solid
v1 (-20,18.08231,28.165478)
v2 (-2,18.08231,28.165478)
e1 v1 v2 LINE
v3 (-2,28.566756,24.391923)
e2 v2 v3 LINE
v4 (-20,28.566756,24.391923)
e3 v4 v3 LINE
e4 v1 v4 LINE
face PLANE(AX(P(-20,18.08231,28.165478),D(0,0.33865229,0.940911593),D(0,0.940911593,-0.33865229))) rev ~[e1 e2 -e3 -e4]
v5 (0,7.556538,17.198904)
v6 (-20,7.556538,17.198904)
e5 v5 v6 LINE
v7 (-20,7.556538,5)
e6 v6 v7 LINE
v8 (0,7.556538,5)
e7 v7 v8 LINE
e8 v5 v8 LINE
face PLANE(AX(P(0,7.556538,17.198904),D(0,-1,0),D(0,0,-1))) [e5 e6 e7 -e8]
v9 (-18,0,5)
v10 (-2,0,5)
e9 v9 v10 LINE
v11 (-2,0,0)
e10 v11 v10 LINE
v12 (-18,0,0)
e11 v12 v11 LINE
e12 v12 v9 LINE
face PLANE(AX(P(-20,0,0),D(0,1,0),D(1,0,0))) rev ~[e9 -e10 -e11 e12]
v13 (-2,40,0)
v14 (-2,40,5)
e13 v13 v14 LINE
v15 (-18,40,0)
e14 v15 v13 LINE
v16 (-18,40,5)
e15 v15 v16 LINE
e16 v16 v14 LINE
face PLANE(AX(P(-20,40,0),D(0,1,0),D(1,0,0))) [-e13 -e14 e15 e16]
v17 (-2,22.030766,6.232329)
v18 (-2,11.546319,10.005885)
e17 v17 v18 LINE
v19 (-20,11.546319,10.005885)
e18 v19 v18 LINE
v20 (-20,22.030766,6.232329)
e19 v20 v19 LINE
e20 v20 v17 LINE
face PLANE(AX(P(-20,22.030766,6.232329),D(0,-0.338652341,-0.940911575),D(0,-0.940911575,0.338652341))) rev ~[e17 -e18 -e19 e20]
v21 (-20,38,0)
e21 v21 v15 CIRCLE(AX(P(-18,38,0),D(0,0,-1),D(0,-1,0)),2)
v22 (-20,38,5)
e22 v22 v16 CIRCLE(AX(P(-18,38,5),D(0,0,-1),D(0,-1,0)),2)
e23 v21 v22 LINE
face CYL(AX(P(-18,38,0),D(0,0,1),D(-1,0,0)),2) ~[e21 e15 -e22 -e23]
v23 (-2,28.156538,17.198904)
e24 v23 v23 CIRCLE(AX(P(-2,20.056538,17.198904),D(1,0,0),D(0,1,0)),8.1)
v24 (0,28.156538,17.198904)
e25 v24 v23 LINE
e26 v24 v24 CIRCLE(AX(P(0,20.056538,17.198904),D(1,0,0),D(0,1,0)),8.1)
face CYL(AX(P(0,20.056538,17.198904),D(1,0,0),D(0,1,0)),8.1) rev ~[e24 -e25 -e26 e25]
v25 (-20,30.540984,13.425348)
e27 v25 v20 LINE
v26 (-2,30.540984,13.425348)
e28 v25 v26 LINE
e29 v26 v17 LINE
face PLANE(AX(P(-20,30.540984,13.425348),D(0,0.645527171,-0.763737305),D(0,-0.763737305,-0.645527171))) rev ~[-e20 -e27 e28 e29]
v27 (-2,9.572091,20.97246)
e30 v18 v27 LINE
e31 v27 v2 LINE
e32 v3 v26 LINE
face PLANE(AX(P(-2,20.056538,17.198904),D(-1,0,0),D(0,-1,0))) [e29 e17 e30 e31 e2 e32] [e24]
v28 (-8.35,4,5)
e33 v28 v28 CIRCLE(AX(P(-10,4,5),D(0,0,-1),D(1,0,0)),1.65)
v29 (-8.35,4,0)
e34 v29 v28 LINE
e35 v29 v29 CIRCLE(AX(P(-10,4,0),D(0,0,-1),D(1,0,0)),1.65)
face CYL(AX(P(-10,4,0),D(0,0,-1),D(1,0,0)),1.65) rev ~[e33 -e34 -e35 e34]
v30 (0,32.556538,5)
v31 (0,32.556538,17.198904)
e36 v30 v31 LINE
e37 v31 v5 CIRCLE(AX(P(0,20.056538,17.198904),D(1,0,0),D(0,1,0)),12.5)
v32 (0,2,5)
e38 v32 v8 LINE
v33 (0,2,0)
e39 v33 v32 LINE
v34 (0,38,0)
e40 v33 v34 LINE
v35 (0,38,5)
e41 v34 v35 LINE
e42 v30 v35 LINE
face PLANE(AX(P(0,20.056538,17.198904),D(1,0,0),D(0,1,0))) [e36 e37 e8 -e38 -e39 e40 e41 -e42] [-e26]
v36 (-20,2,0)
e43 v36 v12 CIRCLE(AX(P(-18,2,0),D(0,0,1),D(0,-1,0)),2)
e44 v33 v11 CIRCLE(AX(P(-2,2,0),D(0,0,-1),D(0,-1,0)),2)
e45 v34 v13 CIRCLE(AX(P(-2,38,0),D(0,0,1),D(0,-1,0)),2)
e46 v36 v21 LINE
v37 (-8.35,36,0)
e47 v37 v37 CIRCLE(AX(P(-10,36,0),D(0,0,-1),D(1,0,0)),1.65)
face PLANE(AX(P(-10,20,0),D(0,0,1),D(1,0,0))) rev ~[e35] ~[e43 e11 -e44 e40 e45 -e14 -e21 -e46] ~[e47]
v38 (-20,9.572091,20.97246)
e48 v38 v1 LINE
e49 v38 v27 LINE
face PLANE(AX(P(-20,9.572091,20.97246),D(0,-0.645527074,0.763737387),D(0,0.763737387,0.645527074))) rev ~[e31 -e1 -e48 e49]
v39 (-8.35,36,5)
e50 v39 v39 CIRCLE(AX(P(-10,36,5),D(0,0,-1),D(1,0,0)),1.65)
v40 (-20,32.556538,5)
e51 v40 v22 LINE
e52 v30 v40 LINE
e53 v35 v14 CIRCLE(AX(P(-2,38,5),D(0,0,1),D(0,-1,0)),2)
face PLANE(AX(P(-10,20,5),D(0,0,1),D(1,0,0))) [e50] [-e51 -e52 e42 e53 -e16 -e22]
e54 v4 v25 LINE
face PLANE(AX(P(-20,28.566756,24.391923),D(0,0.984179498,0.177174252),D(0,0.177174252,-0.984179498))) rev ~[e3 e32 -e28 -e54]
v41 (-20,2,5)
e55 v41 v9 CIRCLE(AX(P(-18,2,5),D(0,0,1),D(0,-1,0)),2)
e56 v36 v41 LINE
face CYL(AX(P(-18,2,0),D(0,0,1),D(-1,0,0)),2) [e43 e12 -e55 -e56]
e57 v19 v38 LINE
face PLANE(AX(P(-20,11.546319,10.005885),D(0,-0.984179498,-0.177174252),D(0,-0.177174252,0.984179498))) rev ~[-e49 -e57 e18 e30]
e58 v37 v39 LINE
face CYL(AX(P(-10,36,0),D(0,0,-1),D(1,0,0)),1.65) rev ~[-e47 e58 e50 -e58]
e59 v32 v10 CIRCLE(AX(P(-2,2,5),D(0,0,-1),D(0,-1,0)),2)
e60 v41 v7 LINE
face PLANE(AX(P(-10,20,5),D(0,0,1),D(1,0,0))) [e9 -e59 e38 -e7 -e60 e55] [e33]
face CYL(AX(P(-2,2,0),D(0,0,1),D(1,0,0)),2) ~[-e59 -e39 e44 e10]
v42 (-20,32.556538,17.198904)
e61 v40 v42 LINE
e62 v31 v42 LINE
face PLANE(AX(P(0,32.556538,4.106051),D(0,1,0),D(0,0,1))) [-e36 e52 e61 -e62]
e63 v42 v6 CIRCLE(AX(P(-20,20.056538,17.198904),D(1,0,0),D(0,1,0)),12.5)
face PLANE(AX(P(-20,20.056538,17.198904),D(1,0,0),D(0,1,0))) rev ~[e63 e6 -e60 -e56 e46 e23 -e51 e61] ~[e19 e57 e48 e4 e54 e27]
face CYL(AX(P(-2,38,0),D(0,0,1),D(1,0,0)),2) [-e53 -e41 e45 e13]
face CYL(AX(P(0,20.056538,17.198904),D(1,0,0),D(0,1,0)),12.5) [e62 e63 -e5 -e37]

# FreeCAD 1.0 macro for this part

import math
import FreeCAD as App
import Part
import Sketcher
from FreeCAD import Vector


def edges_at(feature, points):
    """Names of the edges that pass closest to the given points."""
    edges = feature.Shape.Edges
    near = lambda p: min(range(len(edges)), key=lambda i: edges[i].distToShape(Part.Vertex(*p))[0])
    return sorted({f"Edge{near(p) + 1}" for p in points})


def add_polygon(sketch, points):
    """Adds a closed chain of lines whose ends are joined by coincident constraints."""
    first, n = sketch.GeometryCount, len(points)
    for a, b in zip(points, points[1:] + points[:1]):
        sketch.addGeometry(Part.LineSegment(App.Vector(*a, 0), App.Vector(*b, 0)), False)
    for i in range(n):
        sketch.addConstraint(Sketcher.Constraint("Coincident", first + i, 2, first + (i + 1) % n, 1))

doc = App.newDocument("Part")
params = doc.addObject("Spreadsheet::Sheet", "Params")
for row, (alias, value) in enumerate([
    ("sketch1_width", "20 mm"),
    ("sketch1_height", "40 mm"),
    ("pad1_length", "5 mm"),
    ("sketch2_diameter", "16.2 mm"),
    ("sketch2_radius", "12.5 mm"),
    ("pad2_length", "20 mm"),
    ("pocket1_length", "18 mm"),
    ("sketch4_diameter", "3.3 mm"),
    ("fillet_radius", "2 mm"),
], start=1):
    params.set(f"A{row}", alias)
    params.set(f"B{row}", "=" + value)
    params.setAlias(f"B{row}", alias)

body = doc.addObject("PartDesign::Body", "Body")

sketch1 = body.newObject("Sketcher::SketchObject", "Sketch")
sketch1.AttachmentSupport = (doc.getObject("XY_Plane"), [""])
sketch1.MapMode = "FlatFace"
add_polygon(sketch1, [(-20, 40), (-20, 0), (0, 0), (0, 40)])
sketch1.addConstraint([
    Sketcher.Constraint("Vertical", 0),
    Sketcher.Constraint("Horizontal", 1),
    Sketcher.Constraint("Vertical", 2),
    Sketcher.Constraint("Horizontal", 3),
    Sketcher.Constraint("Coincident", 1, 2, -1, 1),
    Sketcher.Constraint("DistanceX", 1, 1, 1, 2, 20.0),
    Sketcher.Constraint("DistanceY", 0, 2, 0, 1, 40.0),
])
sketch1.setExpression("Constraints[9]", "Params.sketch1_width")
sketch1.setExpression("Constraints[10]", "Params.sketch1_height")
pad1 = body.newObject("PartDesign::Pad", "Pad")
pad1.Profile = sketch1
pad1.setExpression("Length", "Params.pad1_length")

sketch2 = body.newObject("Sketcher::SketchObject", "Sketch001")
sketch2.AttachmentSupport = (doc.getObject("YZ_Plane"), [""])
sketch2.MapMode = "FlatFace"
sketch2.addGeometry([
    Part.ArcOfCircle(Part.Circle(Vector(20, 17, 0), Vector(0, 0, 1), 12), math.radians(0), math.radians(180)),
    Part.LineSegment(Vector(8, 17, 0), Vector(8, 4, 0)),
    Part.LineSegment(Vector(8, 4, 0), Vector(33, 4, 0)),
    Part.LineSegment(Vector(33, 4, 0), Vector(33, 17, 0)),
    Part.Circle(Vector(20, 17, 0), Vector(0, 0, 1), 8),
], False)
sketch2.addConstraint([
    Sketcher.Constraint("Tangent", 0, 2, 1, 1),
    Sketcher.Constraint("Coincident", 1, 2, 2, 1),
    Sketcher.Constraint("Coincident", 2, 2, 3, 1),
    Sketcher.Constraint("Tangent", 3, 2, 0, 1),
    Sketcher.Constraint("Vertical", 1),
    Sketcher.Constraint("Horizontal", 2),
    Sketcher.Constraint("Vertical", 3),
    Sketcher.Constraint("Coincident", 4, 3, 0, 3),
    Sketcher.Constraint("Diameter", 4, 16.2),
    Sketcher.Constraint("Radius", 0, 12.5),
    Sketcher.Constraint("DistanceY", 1, 2, 1, 1, 13.092853),
    Sketcher.Constraint("DistanceX", -1, 1, 0, 3, 20.056538),
    Sketcher.Constraint("DistanceY", -1, 1, 1, 2, 4.106051),
])
sketch2.setExpression("Constraints[8]", "Params.sketch2_diameter")
sketch2.setExpression("Constraints[9]", "Params.sketch2_radius")
pad2 = body.newObject("PartDesign::Pad", "Pad001")
pad2.Profile = sketch2
pad2.setExpression("Length", "Params.pad2_length")
pad2.Reversed = True

sketch3 = body.newObject("Sketcher::SketchObject", "Sketch002")
sketch3.AttachmentSupport = (doc.getObject("YZ_Plane"), [""])
sketch3.MapMode = "FlatFace"
sketch3.AttachmentOffset = App.Placement(Vector(0, 0, -20), App.Rotation())
add_polygon(sketch3, [(31, 13), (22, 6), (12, 10), (10, 21), (18, 28), (29, 24)])
sketch3.addConstraint([
    Sketcher.Constraint("Parallel", 0, 3),
    Sketcher.Constraint("Parallel", 1, 4),
    Sketcher.Constraint("Parallel", 2, 5),
    Sketcher.Constraint("Equal", 0, 1),
    Sketcher.Constraint("Equal", 1, 2),
    Sketcher.Constraint("Equal", 2, 3),
    Sketcher.Constraint("Distance", 0, 11.14286),
    Sketcher.Constraint("DistanceY", -1, 1, 0, 2, 6.232329),
    Sketcher.Constraint("DistanceX", -1, 1, 1, 2, 11.546319),
    Sketcher.Constraint("DistanceX", -1, 1, 2, 2, 9.572091),
    Sketcher.Constraint("DistanceY", -1, 1, 2, 2, 20.97246),
    Sketcher.Constraint("DistanceX", -1, 1, 3, 2, 18.08231),
])
pocket1 = body.newObject("PartDesign::Pocket", "Pocket")
pocket1.Profile = sketch3
pocket1.setExpression("Length", "Params.pocket1_length")
pocket1.Reversed = True

sketch4 = body.newObject("Sketcher::SketchObject", "Sketch003")
sketch4.AttachmentSupport = (doc.getObject("XY_Plane"), [""])
sketch4.MapMode = "FlatFace"
sketch4.addGeometry([
    Part.Circle(Vector(-10, 4, 0), Vector(0, 0, 1), 1.6),
    Part.Circle(Vector(-10, 36, 0), Vector(0, 0, 1), 1.6),
], False)
sketch4.addConstraint([
    Sketcher.Constraint("Equal", 0, 1),
    Sketcher.Constraint("Vertical", 0, 3, 1, 3),
    Sketcher.Constraint("Diameter", 0, 3.3),
    Sketcher.Constraint("DistanceX", 0, 3, -1, 1, 10.0),
    Sketcher.Constraint("DistanceY", -1, 1, 0, 3, 4.0),
    Sketcher.Constraint("DistanceY", -1, 1, 1, 3, 36.0),
])
sketch4.setExpression("Constraints[2]", "Params.sketch4_diameter")
pocket2 = body.newObject("PartDesign::Pocket", "Pocket001")
pocket2.Profile = sketch4
pocket2.Type = "ThroughAll"
pocket2.Reversed = True
doc.recompute()

fillet = body.newObject("PartDesign::Fillet", "Fillet")
fillet.Base = (pocket2, edges_at(pocket2, [
    (-20, 40, 2.5),
    (0, 40, 2.5),
    (0, 0, 2.5),
    (-20, 0, 2.5),
]))
fillet.setExpression("Radius", "Params.fillet_radius")

doc.recompute()
